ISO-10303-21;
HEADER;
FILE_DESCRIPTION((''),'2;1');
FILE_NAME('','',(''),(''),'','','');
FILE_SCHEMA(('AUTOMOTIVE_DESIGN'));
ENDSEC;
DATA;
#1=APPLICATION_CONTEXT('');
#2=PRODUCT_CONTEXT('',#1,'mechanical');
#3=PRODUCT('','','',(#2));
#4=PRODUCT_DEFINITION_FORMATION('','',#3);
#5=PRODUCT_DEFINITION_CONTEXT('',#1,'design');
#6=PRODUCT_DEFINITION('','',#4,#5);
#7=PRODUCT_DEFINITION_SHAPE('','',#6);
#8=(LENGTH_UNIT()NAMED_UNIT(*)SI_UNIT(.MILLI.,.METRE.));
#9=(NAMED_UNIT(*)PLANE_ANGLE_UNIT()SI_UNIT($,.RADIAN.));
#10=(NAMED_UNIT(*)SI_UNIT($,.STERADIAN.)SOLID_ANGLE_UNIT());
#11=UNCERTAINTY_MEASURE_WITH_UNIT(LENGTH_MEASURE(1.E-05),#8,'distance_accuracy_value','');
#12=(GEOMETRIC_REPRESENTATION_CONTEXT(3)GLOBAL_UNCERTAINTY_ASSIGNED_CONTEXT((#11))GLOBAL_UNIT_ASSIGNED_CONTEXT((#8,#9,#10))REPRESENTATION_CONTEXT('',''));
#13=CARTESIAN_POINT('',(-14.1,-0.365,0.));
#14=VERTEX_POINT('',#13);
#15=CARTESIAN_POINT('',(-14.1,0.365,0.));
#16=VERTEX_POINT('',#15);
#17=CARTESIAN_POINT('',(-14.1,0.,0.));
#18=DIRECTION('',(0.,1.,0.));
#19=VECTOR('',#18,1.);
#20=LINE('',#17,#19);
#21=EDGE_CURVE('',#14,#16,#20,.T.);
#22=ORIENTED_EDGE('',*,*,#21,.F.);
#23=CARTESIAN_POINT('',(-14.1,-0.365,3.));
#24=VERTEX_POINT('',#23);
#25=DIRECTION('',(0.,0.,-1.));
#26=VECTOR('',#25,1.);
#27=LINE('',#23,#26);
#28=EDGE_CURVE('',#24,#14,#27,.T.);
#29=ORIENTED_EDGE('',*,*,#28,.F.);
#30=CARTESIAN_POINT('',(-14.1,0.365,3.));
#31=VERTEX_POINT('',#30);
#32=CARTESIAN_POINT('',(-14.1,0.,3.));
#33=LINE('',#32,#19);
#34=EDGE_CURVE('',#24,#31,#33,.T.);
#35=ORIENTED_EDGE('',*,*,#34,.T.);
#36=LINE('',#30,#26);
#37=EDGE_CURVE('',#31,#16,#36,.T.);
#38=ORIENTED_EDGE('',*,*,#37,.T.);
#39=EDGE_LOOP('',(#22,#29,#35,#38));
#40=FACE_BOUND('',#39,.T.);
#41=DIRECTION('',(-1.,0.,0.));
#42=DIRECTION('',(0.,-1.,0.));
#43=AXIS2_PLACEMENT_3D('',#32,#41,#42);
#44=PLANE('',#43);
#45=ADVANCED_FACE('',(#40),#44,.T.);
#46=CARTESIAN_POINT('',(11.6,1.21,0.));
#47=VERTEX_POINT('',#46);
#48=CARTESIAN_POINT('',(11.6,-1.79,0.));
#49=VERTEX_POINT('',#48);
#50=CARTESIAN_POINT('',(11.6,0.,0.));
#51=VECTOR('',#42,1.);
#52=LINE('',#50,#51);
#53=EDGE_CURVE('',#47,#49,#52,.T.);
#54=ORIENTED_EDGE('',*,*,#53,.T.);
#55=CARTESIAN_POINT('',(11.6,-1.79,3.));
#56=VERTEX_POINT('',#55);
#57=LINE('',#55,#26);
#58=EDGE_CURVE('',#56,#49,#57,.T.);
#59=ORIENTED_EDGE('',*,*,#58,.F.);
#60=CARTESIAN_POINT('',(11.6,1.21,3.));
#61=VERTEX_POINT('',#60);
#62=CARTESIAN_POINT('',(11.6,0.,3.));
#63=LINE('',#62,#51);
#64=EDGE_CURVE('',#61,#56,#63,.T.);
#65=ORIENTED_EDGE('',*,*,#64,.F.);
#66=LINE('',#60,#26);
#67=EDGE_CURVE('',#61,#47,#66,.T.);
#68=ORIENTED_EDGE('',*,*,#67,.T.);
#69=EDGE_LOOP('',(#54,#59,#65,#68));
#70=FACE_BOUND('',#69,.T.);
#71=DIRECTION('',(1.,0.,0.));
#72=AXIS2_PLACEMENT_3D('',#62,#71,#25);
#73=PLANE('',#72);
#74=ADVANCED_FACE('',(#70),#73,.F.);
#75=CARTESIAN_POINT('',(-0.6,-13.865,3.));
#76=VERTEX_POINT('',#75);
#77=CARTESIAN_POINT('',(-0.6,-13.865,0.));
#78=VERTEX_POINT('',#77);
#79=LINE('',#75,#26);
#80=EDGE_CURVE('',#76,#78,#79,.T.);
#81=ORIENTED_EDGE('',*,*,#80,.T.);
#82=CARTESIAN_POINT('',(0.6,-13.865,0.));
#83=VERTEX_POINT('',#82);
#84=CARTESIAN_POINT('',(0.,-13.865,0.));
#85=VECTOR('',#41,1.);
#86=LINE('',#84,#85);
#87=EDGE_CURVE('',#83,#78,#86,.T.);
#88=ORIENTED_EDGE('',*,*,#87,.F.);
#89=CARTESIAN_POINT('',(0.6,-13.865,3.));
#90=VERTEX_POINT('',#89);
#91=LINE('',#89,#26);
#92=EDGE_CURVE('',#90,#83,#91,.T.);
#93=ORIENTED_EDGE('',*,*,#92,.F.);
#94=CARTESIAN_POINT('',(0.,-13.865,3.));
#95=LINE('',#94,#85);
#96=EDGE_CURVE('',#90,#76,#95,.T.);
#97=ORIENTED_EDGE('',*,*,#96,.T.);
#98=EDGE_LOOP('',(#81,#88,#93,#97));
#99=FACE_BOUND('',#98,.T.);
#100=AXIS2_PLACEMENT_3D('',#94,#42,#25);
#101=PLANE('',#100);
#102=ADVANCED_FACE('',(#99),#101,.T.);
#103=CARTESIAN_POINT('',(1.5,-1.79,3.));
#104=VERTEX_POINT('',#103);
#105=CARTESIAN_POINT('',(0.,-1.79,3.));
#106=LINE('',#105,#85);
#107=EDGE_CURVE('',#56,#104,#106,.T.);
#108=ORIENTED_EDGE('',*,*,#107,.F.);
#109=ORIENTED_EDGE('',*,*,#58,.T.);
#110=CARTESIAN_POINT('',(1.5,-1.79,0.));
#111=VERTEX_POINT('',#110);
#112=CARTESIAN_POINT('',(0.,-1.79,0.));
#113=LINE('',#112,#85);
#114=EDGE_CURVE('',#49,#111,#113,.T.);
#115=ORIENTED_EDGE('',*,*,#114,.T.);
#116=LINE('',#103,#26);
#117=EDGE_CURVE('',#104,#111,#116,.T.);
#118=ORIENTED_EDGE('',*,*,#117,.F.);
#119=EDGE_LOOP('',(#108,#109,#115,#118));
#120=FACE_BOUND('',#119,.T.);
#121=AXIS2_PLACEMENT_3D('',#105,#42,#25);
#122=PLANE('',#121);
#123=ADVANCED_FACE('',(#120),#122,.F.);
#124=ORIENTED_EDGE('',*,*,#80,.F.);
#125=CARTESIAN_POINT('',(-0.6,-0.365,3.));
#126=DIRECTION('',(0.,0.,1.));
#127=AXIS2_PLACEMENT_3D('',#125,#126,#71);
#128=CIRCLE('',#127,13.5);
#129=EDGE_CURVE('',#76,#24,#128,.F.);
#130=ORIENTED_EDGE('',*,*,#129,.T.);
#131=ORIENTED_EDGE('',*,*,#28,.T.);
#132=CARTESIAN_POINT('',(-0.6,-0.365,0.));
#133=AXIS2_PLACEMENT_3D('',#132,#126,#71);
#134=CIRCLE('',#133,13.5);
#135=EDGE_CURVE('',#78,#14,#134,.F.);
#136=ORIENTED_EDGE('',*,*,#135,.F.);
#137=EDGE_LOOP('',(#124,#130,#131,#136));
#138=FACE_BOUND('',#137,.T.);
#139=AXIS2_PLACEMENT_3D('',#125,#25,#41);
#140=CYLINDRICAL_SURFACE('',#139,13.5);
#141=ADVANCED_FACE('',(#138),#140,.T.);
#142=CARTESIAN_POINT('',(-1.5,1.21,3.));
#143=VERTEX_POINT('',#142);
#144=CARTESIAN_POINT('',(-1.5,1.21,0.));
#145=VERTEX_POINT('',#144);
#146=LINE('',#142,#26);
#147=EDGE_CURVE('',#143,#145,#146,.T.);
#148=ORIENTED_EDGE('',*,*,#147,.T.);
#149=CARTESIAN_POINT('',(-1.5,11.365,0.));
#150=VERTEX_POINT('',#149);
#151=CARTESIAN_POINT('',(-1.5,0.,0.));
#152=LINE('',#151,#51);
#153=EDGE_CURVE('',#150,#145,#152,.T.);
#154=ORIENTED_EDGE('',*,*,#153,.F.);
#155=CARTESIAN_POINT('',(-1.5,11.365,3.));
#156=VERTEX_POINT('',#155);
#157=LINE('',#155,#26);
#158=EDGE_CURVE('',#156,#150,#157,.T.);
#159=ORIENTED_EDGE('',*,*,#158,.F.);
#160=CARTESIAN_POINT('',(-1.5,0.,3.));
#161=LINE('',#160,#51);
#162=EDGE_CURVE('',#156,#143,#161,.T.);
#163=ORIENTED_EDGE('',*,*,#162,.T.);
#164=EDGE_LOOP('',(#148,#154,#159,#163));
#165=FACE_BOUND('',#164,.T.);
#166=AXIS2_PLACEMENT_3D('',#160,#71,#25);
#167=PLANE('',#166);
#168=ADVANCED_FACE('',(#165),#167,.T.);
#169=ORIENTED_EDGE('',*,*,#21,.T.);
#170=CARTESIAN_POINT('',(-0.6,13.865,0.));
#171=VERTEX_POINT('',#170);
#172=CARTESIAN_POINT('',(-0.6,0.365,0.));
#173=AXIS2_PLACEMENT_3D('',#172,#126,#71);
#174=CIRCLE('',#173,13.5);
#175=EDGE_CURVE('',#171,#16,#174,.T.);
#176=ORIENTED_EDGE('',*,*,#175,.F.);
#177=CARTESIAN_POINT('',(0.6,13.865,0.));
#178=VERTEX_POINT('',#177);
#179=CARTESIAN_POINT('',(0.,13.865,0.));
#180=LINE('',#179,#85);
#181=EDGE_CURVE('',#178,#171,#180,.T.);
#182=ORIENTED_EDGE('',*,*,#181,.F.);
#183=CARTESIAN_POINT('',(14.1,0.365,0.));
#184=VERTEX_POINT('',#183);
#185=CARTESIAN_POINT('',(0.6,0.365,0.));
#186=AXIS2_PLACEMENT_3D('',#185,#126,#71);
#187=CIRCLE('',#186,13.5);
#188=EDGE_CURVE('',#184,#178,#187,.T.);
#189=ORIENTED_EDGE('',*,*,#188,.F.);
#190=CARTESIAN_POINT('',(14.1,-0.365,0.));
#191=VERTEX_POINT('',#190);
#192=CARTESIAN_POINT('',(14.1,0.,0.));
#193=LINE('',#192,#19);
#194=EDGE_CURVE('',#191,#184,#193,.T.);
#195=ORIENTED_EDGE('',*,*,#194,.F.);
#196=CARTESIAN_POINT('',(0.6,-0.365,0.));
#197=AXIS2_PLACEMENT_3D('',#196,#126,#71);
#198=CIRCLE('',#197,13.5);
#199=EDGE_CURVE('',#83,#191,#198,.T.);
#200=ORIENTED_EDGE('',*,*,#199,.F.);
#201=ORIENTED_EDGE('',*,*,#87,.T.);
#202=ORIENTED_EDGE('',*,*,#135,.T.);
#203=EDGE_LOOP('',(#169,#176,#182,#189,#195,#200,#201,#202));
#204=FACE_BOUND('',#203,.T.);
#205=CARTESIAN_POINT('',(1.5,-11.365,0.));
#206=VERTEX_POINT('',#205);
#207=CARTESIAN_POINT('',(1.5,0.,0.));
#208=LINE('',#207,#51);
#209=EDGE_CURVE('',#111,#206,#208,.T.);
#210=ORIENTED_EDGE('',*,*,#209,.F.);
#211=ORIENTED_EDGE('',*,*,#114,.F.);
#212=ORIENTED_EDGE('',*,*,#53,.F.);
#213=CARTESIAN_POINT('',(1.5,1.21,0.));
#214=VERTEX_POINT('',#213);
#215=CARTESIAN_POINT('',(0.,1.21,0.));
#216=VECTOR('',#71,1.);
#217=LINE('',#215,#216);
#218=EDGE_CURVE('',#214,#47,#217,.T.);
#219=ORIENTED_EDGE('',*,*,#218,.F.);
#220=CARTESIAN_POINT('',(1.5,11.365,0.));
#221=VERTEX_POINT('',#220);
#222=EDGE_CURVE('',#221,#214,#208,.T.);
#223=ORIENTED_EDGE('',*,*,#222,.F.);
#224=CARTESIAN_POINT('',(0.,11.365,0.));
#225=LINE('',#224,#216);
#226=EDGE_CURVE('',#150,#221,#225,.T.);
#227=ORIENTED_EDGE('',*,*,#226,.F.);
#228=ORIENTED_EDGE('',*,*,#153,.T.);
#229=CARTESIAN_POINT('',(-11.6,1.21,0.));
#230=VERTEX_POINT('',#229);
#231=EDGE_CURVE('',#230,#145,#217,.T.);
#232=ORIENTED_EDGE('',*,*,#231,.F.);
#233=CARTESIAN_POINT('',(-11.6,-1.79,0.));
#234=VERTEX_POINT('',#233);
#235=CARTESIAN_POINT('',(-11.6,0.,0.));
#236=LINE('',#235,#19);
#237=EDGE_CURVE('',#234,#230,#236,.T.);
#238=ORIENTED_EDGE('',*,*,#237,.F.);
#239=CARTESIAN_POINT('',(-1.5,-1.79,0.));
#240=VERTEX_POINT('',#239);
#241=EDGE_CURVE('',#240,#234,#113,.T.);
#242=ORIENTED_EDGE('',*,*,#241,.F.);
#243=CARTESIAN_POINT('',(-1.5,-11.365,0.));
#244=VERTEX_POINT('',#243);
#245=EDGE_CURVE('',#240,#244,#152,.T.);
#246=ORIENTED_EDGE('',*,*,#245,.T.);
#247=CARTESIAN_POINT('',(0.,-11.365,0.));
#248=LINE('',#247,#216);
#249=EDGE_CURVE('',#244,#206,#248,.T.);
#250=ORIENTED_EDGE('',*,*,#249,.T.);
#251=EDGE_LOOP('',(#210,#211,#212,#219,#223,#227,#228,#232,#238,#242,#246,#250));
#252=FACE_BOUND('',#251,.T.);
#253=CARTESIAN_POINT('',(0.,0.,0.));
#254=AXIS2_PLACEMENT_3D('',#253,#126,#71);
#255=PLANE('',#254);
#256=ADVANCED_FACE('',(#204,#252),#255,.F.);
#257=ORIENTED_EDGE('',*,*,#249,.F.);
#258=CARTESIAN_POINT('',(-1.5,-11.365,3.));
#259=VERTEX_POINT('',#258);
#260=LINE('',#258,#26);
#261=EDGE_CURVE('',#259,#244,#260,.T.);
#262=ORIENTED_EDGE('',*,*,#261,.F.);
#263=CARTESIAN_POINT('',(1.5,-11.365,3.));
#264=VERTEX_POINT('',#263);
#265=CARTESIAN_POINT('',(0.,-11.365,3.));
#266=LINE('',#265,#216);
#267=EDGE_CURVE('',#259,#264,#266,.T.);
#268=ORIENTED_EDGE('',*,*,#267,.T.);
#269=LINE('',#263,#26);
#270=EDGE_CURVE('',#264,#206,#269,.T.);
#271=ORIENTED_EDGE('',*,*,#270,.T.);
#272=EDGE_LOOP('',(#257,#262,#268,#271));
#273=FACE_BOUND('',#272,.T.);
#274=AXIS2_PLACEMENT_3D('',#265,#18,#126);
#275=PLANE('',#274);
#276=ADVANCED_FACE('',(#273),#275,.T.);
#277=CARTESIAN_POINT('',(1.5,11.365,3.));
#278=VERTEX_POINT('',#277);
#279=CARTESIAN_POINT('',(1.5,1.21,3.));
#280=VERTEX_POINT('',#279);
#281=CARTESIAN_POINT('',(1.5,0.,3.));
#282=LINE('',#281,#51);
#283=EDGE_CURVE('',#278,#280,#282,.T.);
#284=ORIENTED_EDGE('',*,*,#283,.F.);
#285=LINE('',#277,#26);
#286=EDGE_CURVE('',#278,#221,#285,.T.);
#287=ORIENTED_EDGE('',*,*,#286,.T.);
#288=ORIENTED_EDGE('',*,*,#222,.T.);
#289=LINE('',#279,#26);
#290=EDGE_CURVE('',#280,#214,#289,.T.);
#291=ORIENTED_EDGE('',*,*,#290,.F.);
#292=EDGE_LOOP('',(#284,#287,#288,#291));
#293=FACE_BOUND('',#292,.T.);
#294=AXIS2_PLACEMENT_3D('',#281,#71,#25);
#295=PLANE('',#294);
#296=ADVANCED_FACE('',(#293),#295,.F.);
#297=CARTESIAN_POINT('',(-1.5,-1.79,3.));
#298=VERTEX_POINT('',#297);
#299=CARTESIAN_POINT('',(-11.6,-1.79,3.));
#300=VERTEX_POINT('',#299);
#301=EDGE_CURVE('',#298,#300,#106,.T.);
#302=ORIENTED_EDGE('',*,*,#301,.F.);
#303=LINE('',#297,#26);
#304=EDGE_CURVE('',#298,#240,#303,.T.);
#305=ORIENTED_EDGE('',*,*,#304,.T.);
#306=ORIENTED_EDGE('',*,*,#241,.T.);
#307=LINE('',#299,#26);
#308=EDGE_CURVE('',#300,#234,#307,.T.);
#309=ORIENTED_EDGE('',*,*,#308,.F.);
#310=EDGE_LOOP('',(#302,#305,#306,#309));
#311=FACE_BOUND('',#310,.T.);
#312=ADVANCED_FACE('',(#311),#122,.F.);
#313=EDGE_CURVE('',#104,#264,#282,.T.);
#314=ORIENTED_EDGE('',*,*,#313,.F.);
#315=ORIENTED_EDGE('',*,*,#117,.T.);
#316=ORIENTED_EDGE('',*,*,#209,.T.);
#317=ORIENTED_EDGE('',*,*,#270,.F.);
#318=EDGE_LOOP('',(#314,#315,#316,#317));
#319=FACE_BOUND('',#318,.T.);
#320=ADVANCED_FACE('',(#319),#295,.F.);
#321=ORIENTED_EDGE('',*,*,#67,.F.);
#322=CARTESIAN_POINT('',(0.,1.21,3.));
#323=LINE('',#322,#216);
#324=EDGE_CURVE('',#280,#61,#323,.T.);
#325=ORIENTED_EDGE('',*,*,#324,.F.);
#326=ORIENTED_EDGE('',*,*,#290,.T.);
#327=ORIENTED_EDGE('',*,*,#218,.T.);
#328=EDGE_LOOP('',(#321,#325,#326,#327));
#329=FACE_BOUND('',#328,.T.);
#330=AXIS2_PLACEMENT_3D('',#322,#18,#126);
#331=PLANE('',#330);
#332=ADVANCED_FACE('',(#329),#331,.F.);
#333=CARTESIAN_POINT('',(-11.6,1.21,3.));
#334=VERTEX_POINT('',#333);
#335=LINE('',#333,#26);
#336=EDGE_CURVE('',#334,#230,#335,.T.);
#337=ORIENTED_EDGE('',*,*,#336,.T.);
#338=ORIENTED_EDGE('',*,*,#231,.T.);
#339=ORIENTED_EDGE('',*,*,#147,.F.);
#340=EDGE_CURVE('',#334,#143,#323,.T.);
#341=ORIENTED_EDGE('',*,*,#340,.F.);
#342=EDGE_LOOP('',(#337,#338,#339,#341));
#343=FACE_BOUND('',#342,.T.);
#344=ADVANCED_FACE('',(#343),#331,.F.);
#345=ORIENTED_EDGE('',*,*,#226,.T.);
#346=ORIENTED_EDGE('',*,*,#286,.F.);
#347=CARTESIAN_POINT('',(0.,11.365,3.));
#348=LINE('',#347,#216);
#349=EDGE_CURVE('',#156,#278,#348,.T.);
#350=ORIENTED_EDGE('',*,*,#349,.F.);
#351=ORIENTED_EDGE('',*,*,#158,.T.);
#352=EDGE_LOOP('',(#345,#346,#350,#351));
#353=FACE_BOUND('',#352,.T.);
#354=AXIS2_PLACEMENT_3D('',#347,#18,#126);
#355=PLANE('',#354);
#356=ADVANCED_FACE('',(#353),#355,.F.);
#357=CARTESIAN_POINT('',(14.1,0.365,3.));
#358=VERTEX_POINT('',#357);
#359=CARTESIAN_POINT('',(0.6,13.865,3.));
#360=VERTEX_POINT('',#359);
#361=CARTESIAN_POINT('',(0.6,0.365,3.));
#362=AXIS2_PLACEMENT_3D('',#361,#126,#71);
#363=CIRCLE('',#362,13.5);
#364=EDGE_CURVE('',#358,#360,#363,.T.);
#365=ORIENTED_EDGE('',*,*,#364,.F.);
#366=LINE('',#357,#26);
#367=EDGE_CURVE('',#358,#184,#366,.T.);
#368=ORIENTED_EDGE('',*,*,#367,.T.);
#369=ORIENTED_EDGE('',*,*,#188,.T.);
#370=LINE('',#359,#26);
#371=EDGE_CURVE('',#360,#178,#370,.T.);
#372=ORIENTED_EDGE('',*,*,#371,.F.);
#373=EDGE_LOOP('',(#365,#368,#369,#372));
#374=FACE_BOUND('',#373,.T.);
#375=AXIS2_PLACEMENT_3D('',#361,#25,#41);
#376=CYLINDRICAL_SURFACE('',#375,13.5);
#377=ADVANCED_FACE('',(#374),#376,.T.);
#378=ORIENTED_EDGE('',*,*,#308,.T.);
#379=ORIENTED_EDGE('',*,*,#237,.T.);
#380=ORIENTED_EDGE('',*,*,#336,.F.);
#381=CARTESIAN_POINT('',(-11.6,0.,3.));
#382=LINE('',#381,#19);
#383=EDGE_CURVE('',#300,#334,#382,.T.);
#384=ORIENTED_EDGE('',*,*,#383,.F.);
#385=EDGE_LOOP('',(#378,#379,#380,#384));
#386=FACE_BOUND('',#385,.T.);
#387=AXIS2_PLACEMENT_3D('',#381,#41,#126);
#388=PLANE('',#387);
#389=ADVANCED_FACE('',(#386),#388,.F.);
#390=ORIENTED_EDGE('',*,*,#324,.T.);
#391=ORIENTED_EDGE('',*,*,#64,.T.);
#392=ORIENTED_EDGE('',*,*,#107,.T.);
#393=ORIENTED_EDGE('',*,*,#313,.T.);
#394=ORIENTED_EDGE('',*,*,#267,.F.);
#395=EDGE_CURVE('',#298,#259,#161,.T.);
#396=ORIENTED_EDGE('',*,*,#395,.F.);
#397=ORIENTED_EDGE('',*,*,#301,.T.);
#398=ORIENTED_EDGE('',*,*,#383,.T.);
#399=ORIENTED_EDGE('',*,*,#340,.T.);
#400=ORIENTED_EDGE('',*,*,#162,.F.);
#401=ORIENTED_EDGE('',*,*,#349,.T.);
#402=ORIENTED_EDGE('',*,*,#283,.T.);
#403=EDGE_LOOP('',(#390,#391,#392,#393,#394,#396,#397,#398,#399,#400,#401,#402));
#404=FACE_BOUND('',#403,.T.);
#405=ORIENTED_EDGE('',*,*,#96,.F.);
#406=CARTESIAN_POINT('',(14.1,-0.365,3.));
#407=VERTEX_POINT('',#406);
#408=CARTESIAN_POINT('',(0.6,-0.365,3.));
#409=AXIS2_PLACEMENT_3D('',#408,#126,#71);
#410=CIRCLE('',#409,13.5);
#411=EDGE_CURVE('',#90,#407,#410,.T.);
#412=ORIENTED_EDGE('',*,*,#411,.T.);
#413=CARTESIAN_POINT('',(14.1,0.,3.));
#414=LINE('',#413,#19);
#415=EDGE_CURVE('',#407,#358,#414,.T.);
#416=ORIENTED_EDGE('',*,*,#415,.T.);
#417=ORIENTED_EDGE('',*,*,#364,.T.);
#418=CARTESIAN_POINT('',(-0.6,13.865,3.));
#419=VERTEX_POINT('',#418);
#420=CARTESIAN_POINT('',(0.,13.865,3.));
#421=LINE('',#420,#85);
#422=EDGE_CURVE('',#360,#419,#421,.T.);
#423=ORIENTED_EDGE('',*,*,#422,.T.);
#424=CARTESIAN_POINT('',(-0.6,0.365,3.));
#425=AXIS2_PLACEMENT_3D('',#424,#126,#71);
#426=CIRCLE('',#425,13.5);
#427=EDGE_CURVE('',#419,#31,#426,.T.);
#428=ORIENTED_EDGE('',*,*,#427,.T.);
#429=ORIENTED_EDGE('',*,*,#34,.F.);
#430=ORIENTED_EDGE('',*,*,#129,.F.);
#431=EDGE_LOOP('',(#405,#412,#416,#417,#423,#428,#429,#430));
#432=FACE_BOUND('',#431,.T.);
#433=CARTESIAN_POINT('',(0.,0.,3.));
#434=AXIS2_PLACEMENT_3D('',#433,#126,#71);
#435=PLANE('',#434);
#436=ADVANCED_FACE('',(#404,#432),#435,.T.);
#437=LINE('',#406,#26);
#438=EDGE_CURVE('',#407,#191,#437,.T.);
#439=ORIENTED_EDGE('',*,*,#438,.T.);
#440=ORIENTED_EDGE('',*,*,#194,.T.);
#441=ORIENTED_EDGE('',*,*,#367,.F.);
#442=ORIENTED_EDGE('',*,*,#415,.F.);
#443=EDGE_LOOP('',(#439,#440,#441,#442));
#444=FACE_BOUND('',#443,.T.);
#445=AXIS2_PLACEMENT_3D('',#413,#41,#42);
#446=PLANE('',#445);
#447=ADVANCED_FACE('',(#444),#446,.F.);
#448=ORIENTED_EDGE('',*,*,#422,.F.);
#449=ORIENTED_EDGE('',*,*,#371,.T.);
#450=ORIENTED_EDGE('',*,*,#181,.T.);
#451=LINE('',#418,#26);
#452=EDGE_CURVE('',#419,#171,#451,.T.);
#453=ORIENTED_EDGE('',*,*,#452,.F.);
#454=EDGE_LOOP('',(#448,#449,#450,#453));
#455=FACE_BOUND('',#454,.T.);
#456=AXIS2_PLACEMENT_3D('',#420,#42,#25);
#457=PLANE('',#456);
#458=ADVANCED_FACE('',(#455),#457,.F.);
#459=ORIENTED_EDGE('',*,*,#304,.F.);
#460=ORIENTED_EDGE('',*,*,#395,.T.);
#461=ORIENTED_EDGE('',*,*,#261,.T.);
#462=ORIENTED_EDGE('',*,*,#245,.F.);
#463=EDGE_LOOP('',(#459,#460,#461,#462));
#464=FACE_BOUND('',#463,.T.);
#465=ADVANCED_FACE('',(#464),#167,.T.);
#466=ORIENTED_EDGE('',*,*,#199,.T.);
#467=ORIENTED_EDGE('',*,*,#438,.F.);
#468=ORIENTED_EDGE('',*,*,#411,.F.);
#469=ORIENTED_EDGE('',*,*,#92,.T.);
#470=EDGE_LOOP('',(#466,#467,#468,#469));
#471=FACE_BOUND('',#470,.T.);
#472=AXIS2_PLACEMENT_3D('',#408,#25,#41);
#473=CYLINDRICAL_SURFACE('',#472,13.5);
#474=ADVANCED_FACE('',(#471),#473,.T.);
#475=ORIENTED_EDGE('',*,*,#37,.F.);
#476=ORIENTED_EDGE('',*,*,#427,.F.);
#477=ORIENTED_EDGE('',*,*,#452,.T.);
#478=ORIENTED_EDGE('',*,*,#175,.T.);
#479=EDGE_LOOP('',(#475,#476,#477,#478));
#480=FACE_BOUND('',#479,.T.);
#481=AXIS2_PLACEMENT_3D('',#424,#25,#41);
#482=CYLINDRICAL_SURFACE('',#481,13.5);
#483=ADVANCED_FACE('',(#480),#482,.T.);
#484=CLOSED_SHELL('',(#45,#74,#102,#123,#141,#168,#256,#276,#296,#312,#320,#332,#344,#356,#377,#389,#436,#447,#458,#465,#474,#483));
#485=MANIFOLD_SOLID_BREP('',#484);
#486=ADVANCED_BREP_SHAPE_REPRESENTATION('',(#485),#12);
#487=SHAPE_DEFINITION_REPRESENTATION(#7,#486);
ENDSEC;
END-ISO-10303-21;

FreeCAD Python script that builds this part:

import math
import FreeCAD as App
import Part
import Sketcher

V = App.Vector


def add_polygon(sketch, points):
    """Adds a closed chain of lines whose ends are joined by coincident constraints."""
    first, n = sketch.GeometryCount, len(points)
    for a, b in zip(points, points[1:] + points[:1]):
        sketch.addGeometry(Part.LineSegment(App.Vector(*a, 0), App.Vector(*b, 0)), False)
    for i in range(n):
        sketch.addConstraint(Sketcher.Constraint("Coincident", first + i, 2, first + (i + 1) % n, 1))

doc = App.newDocument("Part")
body = doc.addObject("PartDesign::Body", "Body")

sketch1 = doc.addObject("Sketcher::SketchObject", "Sketch")
body.addObject(sketch1)
sketch1.AttachmentSupport = (doc.XY_Plane, [""])
sketch1.MapMode = "FlatFace"
sketch1.addGeometry(Part.LineSegment(V(-0.6, -13.9, 0), V(0.6, -13.9, 0)), False)
sketch1.addGeometry(Part.ArcOfCircle(Part.Circle(V(0.6, -0.4, 0), V(0, 0, 1), 13.5), math.radians(-90), math.radians(0)), False)
sketch1.addGeometry(Part.LineSegment(V(14.1, -0.4, 0), V(14.1, 0.4, 0)), False)
sketch1.addGeometry(Part.ArcOfCircle(Part.Circle(V(0.6, 0.4, 0), V(0, 0, 1), 13.5), math.radians(0), math.radians(90)), False)
sketch1.addGeometry(Part.LineSegment(V(0.6, 13.9, 0), V(-0.6, 13.9, 0)), False)
sketch1.addGeometry(Part.ArcOfCircle(Part.Circle(V(-0.6, 0.4, 0), V(0, 0, 1), 13.5), math.radians(90), math.radians(180)), False)
sketch1.addGeometry(Part.LineSegment(V(-14.1, 0.4, 0), V(-14.1, -0.4, 0)), False)
sketch1.addGeometry(Part.ArcOfCircle(Part.Circle(V(-0.6, -0.4, 0), V(0, 0, 1), 13.5), math.radians(180), math.radians(270)), False)
add_polygon(sketch1, [(-1.5, -1.8), (-11.6, -1.8), (-11.6, 1.2), (-1.5, 1.2), (-1.5, 11.4), (1.5, 11.4), (1.5, 1.2), (11.6, 1.2), (11.6, -1.8), (1.5, -1.8), (1.5, -11.4), (-1.5, -11.4)])
sketch1.addConstraint([
    Sketcher.Constraint("Tangent", 0, 2, 1, 1),
    Sketcher.Constraint("Tangent", 1, 2, 2, 1),
    Sketcher.Constraint("Tangent", 2, 2, 3, 1),
    Sketcher.Constraint("Tangent", 3, 2, 4, 1),
    Sketcher.Constraint("Tangent", 4, 2, 5, 1),
    Sketcher.Constraint("Tangent", 5, 2, 6, 1),
    Sketcher.Constraint("Tangent", 6, 2, 7, 1),
    Sketcher.Constraint("Tangent", 7, 2, 0, 1),
    Sketcher.Constraint("Horizontal", 0),
    Sketcher.Constraint("Vertical", 2),
    Sketcher.Constraint("Horizontal", 4),
    Sketcher.Constraint("Vertical", 6),
    Sketcher.Constraint("Horizontal", 8),
    Sketcher.Constraint("Vertical", 9),
    Sketcher.Constraint("Horizontal", 10),
    Sketcher.Constraint("Vertical", 11),
    Sketcher.Constraint("Horizontal", 12),
    Sketcher.Constraint("Vertical", 13),
    Sketcher.Constraint("Horizontal", 14),
    Sketcher.Constraint("Vertical", 15),
    Sketcher.Constraint("Horizontal", 16),
    Sketcher.Constraint("Vertical", 17),
    Sketcher.Constraint("Horizontal", 18),
    Sketcher.Constraint("Vertical", 19),
    Sketcher.Constraint("Equal", 1, 3),
    Sketcher.Constraint("Equal", 3, 5),
    Sketcher.Constraint("Equal", 5, 7),
    Sketcher.Constraint("Symmetric", 1, 3, 5, 3, -1, 1),
    Sketcher.Constraint("Symmetric", 11, 2, 17, 2, -1, 1),
    Sketcher.Constraint("Symmetric", 10, 2, 13, 2, -2),
    Sketcher.Constraint("Symmetric", 8, 2, 15, 2, -2),
    Sketcher.Constraint("Vertical", 11, 2, 18, 2),
    Sketcher.Constraint("Equal", 18, 9),
    Sketcher.Constraint("Radius", 1, 13.5),
    Sketcher.Constraint("DistanceX", 12, 1, 12, 2, 3.0),
    Sketcher.Constraint("DistanceX", 0, 1, 0, 2, 1.2),
    Sketcher.Constraint("DistanceX", 8, 2, 8, 1, 10.1),
    Sketcher.Constraint("DistanceY", 5, 3, 11, 2, 11.0),
    Sketcher.Constraint("DistanceY", 2, 1, 2, 2, 0.73),
    Sketcher.Constraint("DistanceY", 11, 1, 11, 2, 10.155),
])
pad1 = doc.addObject("PartDesign::Pad", "Pad")
body.addObject(pad1)
pad1.Profile = sketch1
pad1.Length = 3

doc.recompute()
